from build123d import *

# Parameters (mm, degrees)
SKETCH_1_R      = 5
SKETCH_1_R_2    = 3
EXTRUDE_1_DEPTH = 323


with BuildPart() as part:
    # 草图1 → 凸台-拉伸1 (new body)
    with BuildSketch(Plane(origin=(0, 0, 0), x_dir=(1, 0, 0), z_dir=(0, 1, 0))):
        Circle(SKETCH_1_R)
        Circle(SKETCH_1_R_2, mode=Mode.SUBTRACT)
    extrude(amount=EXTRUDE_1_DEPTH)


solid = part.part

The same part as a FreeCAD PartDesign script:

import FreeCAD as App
import Part
import Sketcher

doc = App.newDocument("Part")
body = doc.addObject("PartDesign::Body", "Body")

# Sketch on XZ plane
sketch1 = doc.addObject("Sketcher::SketchObject", "Sketch")
body.addObject(sketch1)
sketch1.AttachmentSupport = (doc.XZ_Plane, [""])
sketch1.MapMode = "FlatFace"
sketch1.addGeometry([
    Part.Circle(App.Vector(0, 0, 0), App.Vector(0, 0, 1), 5),
    Part.Circle(App.Vector(0, 0, 0), App.Vector(0, 0, 1), 3),
], False)
sketch1.addConstraint([
    Sketcher.Constraint("Coincident", 0, 3, -1, 1),
    Sketcher.Constraint("Coincident", 1, 3, -1, 1),
    Sketcher.Constraint("Diameter", 0, 10.0),
    Sketcher.Constraint("Diameter", 1, 6.0),
])
pad1 = doc.addObject("PartDesign::Pad", "Pad")
body.addObject(pad1)
pad1.Profile = sketch1
pad1.Length = 323
pad1.Reversed = True

doc.recompute()
